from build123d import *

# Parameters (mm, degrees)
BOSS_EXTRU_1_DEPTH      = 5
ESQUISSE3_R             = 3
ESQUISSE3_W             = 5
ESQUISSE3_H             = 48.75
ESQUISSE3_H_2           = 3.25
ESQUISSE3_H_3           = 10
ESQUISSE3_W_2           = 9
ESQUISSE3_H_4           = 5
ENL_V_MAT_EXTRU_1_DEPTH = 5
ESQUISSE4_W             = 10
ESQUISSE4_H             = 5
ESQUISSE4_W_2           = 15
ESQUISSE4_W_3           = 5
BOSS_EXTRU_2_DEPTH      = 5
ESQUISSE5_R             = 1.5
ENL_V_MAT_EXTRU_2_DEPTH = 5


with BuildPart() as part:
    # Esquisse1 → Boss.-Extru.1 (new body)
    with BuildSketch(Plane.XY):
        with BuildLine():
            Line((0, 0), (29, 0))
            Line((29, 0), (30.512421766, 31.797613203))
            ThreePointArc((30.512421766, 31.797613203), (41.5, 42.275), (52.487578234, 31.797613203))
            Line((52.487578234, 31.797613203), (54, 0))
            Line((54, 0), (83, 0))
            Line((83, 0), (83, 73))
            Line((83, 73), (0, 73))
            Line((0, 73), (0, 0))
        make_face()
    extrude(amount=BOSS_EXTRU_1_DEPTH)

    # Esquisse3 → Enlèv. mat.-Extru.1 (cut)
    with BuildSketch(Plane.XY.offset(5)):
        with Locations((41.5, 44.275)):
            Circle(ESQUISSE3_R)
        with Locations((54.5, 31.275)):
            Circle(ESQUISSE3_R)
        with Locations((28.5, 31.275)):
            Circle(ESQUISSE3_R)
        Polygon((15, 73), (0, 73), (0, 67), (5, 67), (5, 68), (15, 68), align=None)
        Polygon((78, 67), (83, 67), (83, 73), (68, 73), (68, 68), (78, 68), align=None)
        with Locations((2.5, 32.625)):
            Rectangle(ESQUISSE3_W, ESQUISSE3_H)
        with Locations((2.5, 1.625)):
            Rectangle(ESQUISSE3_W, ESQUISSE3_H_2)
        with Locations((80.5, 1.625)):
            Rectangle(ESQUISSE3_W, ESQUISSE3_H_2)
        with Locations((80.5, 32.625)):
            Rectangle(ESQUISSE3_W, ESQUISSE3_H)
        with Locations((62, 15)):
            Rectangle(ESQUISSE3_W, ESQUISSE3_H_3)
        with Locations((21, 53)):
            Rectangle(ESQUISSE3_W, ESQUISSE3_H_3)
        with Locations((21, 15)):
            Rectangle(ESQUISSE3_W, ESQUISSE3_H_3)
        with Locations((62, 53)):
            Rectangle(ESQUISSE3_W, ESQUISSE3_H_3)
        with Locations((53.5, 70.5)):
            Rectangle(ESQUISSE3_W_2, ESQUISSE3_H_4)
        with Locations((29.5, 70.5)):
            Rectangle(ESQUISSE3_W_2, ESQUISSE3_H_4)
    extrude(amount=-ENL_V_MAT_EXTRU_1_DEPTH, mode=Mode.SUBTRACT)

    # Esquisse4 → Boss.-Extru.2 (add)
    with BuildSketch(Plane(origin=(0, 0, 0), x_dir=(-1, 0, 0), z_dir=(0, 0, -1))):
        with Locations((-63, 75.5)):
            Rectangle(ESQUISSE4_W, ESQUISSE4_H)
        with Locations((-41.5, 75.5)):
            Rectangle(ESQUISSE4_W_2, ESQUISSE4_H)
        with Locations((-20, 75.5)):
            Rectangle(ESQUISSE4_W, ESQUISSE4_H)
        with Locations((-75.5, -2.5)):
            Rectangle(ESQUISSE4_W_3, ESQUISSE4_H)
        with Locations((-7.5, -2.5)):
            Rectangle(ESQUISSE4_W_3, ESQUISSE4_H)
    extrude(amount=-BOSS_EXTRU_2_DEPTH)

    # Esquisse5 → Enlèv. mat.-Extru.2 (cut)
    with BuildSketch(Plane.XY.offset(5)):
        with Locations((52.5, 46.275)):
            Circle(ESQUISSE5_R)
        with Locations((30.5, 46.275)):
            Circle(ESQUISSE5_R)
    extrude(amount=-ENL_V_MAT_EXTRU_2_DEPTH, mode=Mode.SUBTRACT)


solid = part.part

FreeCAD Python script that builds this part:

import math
import FreeCAD as App
import Part
import Sketcher
Q = App.Units.Quantity

doc = App.newDocument("Part")
body = doc.addObject("PartDesign::Body", "Body")

# Sketch on XY plane
sketch1 = body.newObject("Sketcher::SketchObject", "Sketch")
sketch1.AttachmentSupport = (doc.getObject("XY_Plane"), [""])
sketch1.MapMode = "FlatFace"
sketch1.addGeometry([
    Part.LineSegment(App.Vector(0, 0, 0), App.Vector(29, 0, 0)),  # 0
    Part.LineSegment(App.Vector(29, 0, 0), App.Vector(31, 32, 0)),  # 1
    Part.ArcOfCircle(Part.Circle(App.Vector(42, 31, 0), App.Vector(0, 0, 1), 11), math.radians(3), math.radians(177)),  # 2
    Part.LineSegment(App.Vector(52, 32, 0), App.Vector(54, 0, 0)),  # 3
    Part.LineSegment(App.Vector(54, 0, 0), App.Vector(83, 0, 0)),  # 4
    Part.LineSegment(App.Vector(83, 0, 0), App.Vector(83, 73, 0)),  # 5
    Part.LineSegment(App.Vector(83, 73, 0), App.Vector(0, 73, 0)),  # 6
    Part.LineSegment(App.Vector(0, 73, 0), App.Vector(0, 0, 0)),  # 7
], False)
sketch1.addConstraint([
    Sketcher.Constraint("Coincident", 0, 2, 1, 1),
    Sketcher.Constraint("Tangent", 1, 2, 2, 2),
    Sketcher.Constraint("Tangent", 2, 1, 3, 1),
    Sketcher.Constraint("Coincident", 3, 2, 4, 1),
    Sketcher.Constraint("Coincident", 4, 2, 5, 1),
    Sketcher.Constraint("Coincident", 5, 2, 6, 1),
    Sketcher.Constraint("Coincident", 6, 2, 7, 1),
    Sketcher.Constraint("Coincident", 7, 2, 0, 1),
    Sketcher.Constraint("Horizontal", 0),
    Sketcher.Constraint("Horizontal", 4),
    Sketcher.Constraint("Vertical", 5),
    Sketcher.Constraint("Horizontal", 6),
    Sketcher.Constraint("Vertical", 7),
    Sketcher.Constraint("Coincident", 7, 2, -1, 1),
    Sketcher.Constraint("PointOnObject", 3, 2, -1),
    Sketcher.Constraint("Horizontal", 1, 2, 2, 1),
    Sketcher.Constraint("Equal", 0, 4),
    Sketcher.Constraint("Radius", 2, Q("11 mm")),
    Sketcher.Constraint("DistanceX", 0, 1, 0, 2, Q("29 mm")),
    Sketcher.Constraint("DistanceX", 6, 2, 6, 1, Q("83 mm")),
    Sketcher.Constraint("DistanceY", 5, 1, 5, 2, Q("73 mm")),
    Sketcher.Constraint("DistanceY", -1, 1, 2, 3, Q("31.275 mm")),
])
pad1 = body.newObject("PartDesign::Pad", "Pad")
pad1.Profile = sketch1
pad1.Length = 5

# Sketch on XY plane
sketch2 = body.newObject("Sketcher::SketchObject", "Sketch001")
sketch2.AttachmentSupport = (doc.getObject("XY_Plane"), [""])
sketch2.MapMode = "FlatFace"
sketch2.AttachmentOffset = App.Placement(App.Vector(0, 0, 5), App.Rotation())
sketch2.addGeometry([
    Part.Circle(App.Vector(41.5, 44.3, 0), App.Vector(0, 0, 1), 3),  # 0
    Part.Circle(App.Vector(54.5, 31.3, 0), App.Vector(0, 0, 1), 3),  # 1
    Part.Circle(App.Vector(28.5, 31.3, 0), App.Vector(0, 0, 1), 3),  # 2
    Part.LineSegment(App.Vector(15, 73, 0), App.Vector(0, 73, 0)),  # 3
    Part.LineSegment(App.Vector(0, 73, 0), App.Vector(0, 67, 0)),  # 4
    Part.LineSegment(App.Vector(0, 67, 0), App.Vector(5, 67, 0)),  # 5
    Part.LineSegment(App.Vector(5, 67, 0), App.Vector(5, 68, 0)),  # 6
    Part.LineSegment(App.Vector(5, 68, 0), App.Vector(15, 68, 0)),  # 7
    Part.LineSegment(App.Vector(15, 68, 0), App.Vector(15, 73, 0)),  # 8
    Part.LineSegment(App.Vector(78, 67, 0), App.Vector(83, 67, 0)),  # 9
    Part.LineSegment(App.Vector(83, 67, 0), App.Vector(83, 73, 0)),  # 10
    Part.LineSegment(App.Vector(83, 73, 0), App.Vector(68, 73, 0)),  # 11
    Part.LineSegment(App.Vector(68, 73, 0), App.Vector(68, 68, 0)),  # 12
    Part.LineSegment(App.Vector(68, 68, 0), App.Vector(78, 68, 0)),  # 13
    Part.LineSegment(App.Vector(78, 68, 0), App.Vector(78, 67, 0)),  # 14
    Part.LineSegment(App.Vector(0, 57, 0), App.Vector(0, 8.2, 0)),  # 15
    Part.LineSegment(App.Vector(0, 8.2, 0), App.Vector(5, 8.2, 0)),  # 16
    Part.LineSegment(App.Vector(5, 8.2, 0), App.Vector(5, 57, 0)),  # 17
    Part.LineSegment(App.Vector(5, 57, 0), App.Vector(0, 57, 0)),  # 18
    Part.LineSegment(App.Vector(0, 3.2, 0), App.Vector(0, 0, 0)),  # 19
    Part.LineSegment(App.Vector(0, 0, 0), App.Vector(5, 0, 0)),  # 20
    Part.LineSegment(App.Vector(5, 0, 0), App.Vector(5, 3.2, 0)),  # 21
    Part.LineSegment(App.Vector(5, 3.2, 0), App.Vector(0, 3.2, 0)),  # 22
    Part.LineSegment(App.Vector(78, 3.2, 0), App.Vector(78, 0, 0)),  # 23
    Part.LineSegment(App.Vector(78, 0, 0), App.Vector(83, 0, 0)),  # 24
    Part.LineSegment(App.Vector(83, 0, 0), App.Vector(83, 3.2, 0)),  # 25
    Part.LineSegment(App.Vector(83, 3.2, 0), App.Vector(78, 3.2, 0)),  # 26
    Part.LineSegment(App.Vector(78, 57, 0), App.Vector(78, 8.2, 0)),  # 27
    Part.LineSegment(App.Vector(78, 8.2, 0), App.Vector(83, 8.2, 0)),  # 28
    Part.LineSegment(App.Vector(83, 8.2, 0), App.Vector(83, 57, 0)),  # 29
    Part.LineSegment(App.Vector(83, 57, 0), App.Vector(78, 57, 0)),  # 30
    Part.LineSegment(App.Vector(59.5, 20, 0), App.Vector(59.5, 10, 0)),  # 31
    Part.LineSegment(App.Vector(59.5, 10, 0), App.Vector(64.5, 10, 0)),  # 32
    Part.LineSegment(App.Vector(64.5, 10, 0), App.Vector(64.5, 20, 0)),  # 33
    Part.LineSegment(App.Vector(64.5, 20, 0), App.Vector(59.5, 20, 0)),  # 34
    Part.LineSegment(App.Vector(18.5, 58, 0), App.Vector(18.5, 48, 0)),  # 35
    Part.LineSegment(App.Vector(18.5, 48, 0), App.Vector(23.5, 48, 0)),  # 36
    Part.LineSegment(App.Vector(23.5, 48, 0), App.Vector(23.5, 58, 0)),  # 37
    Part.LineSegment(App.Vector(23.5, 58, 0), App.Vector(18.5, 58, 0)),  # 38
    Part.LineSegment(App.Vector(18.5, 20, 0), App.Vector(18.5, 10, 0)),  # 39
    Part.LineSegment(App.Vector(18.5, 10, 0), App.Vector(23.5, 10, 0)),  # 40
    Part.LineSegment(App.Vector(23.5, 10, 0), App.Vector(23.5, 20, 0)),  # 41
    Part.LineSegment(App.Vector(23.5, 20, 0), App.Vector(18.5, 20, 0)),  # 42
    Part.LineSegment(App.Vector(59.5, 58, 0), App.Vector(59.5, 48, 0)),  # 43
    Part.LineSegment(App.Vector(59.5, 48, 0), App.Vector(64.5, 48, 0)),  # 44
    Part.LineSegment(App.Vector(64.5, 48, 0), App.Vector(64.5, 58, 0)),  # 45
    Part.LineSegment(App.Vector(64.5, 58, 0), App.Vector(59.5, 58, 0)),  # 46
    Part.LineSegment(App.Vector(49, 73, 0), App.Vector(49, 68, 0)),  # 47
    Part.LineSegment(App.Vector(49, 68, 0), App.Vector(58, 68, 0)),  # 48
    Part.LineSegment(App.Vector(58, 68, 0), App.Vector(58, 73, 0)),  # 49
    Part.LineSegment(App.Vector(58, 73, 0), App.Vector(49, 73, 0)),  # 50
    Part.LineSegment(App.Vector(25, 73, 0), App.Vector(25, 68, 0)),  # 51
    Part.LineSegment(App.Vector(25, 68, 0), App.Vector(34, 68, 0)),  # 52
    Part.LineSegment(App.Vector(34, 68, 0), App.Vector(34, 73, 0)),  # 53
    Part.LineSegment(App.Vector(34, 73, 0), App.Vector(25, 73, 0)),  # 54
], False)
sketch2.addConstraint([
    Sketcher.Constraint("Coincident", 3, 2, 4, 1),
    Sketcher.Constraint("Coincident", 4, 2, 5, 1),
    Sketcher.Constraint("Coincident", 5, 2, 6, 1),
    Sketcher.Constraint("Coincident", 6, 2, 7, 1),
    Sketcher.Constraint("Coincident", 7, 2, 8, 1),
    Sketcher.Constraint("Coincident", 8, 2, 3, 1),
    Sketcher.Constraint("Coincident", 9, 2, 10, 1),
    Sketcher.Constraint("Coincident", 10, 2, 11, 1),
    Sketcher.Constraint("Coincident", 11, 2, 12, 1),
    Sketcher.Constraint("Coincident", 12, 2, 13, 1),
    Sketcher.Constraint("Coincident", 13, 2, 14, 1),
    Sketcher.Constraint("Coincident", 14, 2, 9, 1),
    Sketcher.Constraint("Coincident", 15, 2, 16, 1),
    Sketcher.Constraint("Coincident", 16, 2, 17, 1),
    Sketcher.Constraint("Coincident", 17, 2, 18, 1),
    Sketcher.Constraint("Coincident", 18, 2, 15, 1),
    Sketcher.Constraint("Coincident", 19, 2, 20, 1),
    Sketcher.Constraint("Coincident", 20, 2, 21, 1),
    Sketcher.Constraint("Coincident", 21, 2, 22, 1),
    Sketcher.Constraint("Coincident", 22, 2, 19, 1),
    Sketcher.Constraint("Coincident", 23, 2, 24, 1),
    Sketcher.Constraint("Coincident", 24, 2, 25, 1),
    Sketcher.Constraint("Coincident", 25, 2, 26, 1),
    Sketcher.Constraint("Coincident", 26, 2, 23, 1),
    Sketcher.Constraint("Coincident", 27, 2, 28, 1),
    Sketcher.Constraint("Coincident", 28, 2, 29, 1),
    Sketcher.Constraint("Coincident", 29, 2, 30, 1),
    Sketcher.Constraint("Coincident", 30, 2, 27, 1),
    Sketcher.Constraint("Coincident", 31, 2, 32, 1),
    Sketcher.Constraint("Coincident", 32, 2, 33, 1),
    Sketcher.Constraint("Coincident", 33, 2, 34, 1),
    Sketcher.Constraint("Coincident", 34, 2, 31, 1),
    Sketcher.Constraint("Coincident", 35, 2, 36, 1),
    Sketcher.Constraint("Coincident", 36, 2, 37, 1),
    Sketcher.Constraint("Coincident", 37, 2, 38, 1),
    Sketcher.Constraint("Coincident", 38, 2, 35, 1),
    Sketcher.Constraint("Coincident", 39, 2, 40, 1),
    Sketcher.Constraint("Coincident", 40, 2, 41, 1),
    Sketcher.Constraint("Coincident", 41, 2, 42, 1),
    Sketcher.Constraint("Coincident", 42, 2, 39, 1),
    Sketcher.Constraint("Coincident", 43, 2, 44, 1),
    Sketcher.Constraint("Coincident", 44, 2, 45, 1),
    Sketcher.Constraint("Coincident", 45, 2, 46, 1),
    Sketcher.Constraint("Coincident", 46, 2, 43, 1),
    Sketcher.Constraint("Coincident", 47, 2, 48, 1),
    Sketcher.Constraint("Coincident", 48, 2, 49, 1),
    Sketcher.Constraint("Coincident", 49, 2, 50, 1),
    Sketcher.Constraint("Coincident", 50, 2, 47, 1),
    Sketcher.Constraint("Coincident", 51, 2, 52, 1),
    Sketcher.Constraint("Coincident", 52, 2, 53, 1),
    Sketcher.Constraint("Coincident", 53, 2, 54, 1),
    Sketcher.Constraint("Coincident", 54, 2, 51, 1),
    Sketcher.Constraint("Horizontal", 3),
    Sketcher.Constraint("Vertical", 4),
    Sketcher.Constraint("Horizontal", 5),
    Sketcher.Constraint("Vertical", 6),
    Sketcher.Constraint("Horizontal", 7),
    Sketcher.Constraint("Vertical", 8),
    Sketcher.Constraint("Horizontal", 9),
    Sketcher.Constraint("Vertical", 10),
    Sketcher.Constraint("Horizontal", 11),
    Sketcher.Constraint("Vertical", 12),
    Sketcher.Constraint("Horizontal", 13),
    Sketcher.Constraint("Vertical", 14),
    Sketcher.Constraint("Vertical", 15),
    Sketcher.Constraint("Horizontal", 16),
    Sketcher.Constraint("Vertical", 17),
    Sketcher.Constraint("Horizontal", 18),
    Sketcher.Constraint("Vertical", 19),
    Sketcher.Constraint("Horizontal", 20),
    Sketcher.Constraint("Vertical", 21),
    Sketcher.Constraint("Horizontal", 22),
    Sketcher.Constraint("Vertical", 23),
    Sketcher.Constraint("Horizontal", 24),
    Sketcher.Constraint("Vertical", 25),
    Sketcher.Constraint("Horizontal", 26),
    Sketcher.Constraint("Vertical", 27),
    Sketcher.Constraint("Horizontal", 28),
    Sketcher.Constraint("Vertical", 29),
    Sketcher.Constraint("Horizontal", 30),
    Sketcher.Constraint("Vertical", 31),
    Sketcher.Constraint("Horizontal", 32),
    Sketcher.Constraint("Vertical", 33),
    Sketcher.Constraint("Horizontal", 34),
    Sketcher.Constraint("Vertical", 35),
    Sketcher.Constraint("Horizontal", 36),
    Sketcher.Constraint("Vertical", 37),
    Sketcher.Constraint("Horizontal", 38),
    Sketcher.Constraint("Vertical", 39),
    Sketcher.Constraint("Horizontal", 40),
    Sketcher.Constraint("Vertical", 41),
    Sketcher.Constraint("Horizontal", 42),
    Sketcher.Constraint("Vertical", 43),
    Sketcher.Constraint("Horizontal", 44),
    Sketcher.Constraint("Vertical", 45),
    Sketcher.Constraint("Horizontal", 46),
    Sketcher.Constraint("Vertical", 47),
    Sketcher.Constraint("Horizontal", 48),
    Sketcher.Constraint("Vertical", 49),
    Sketcher.Constraint("Horizontal", 50),
    Sketcher.Constraint("Vertical", 51),
    Sketcher.Constraint("Horizontal", 52),
    Sketcher.Constraint("Vertical", 53),
    Sketcher.Constraint("Horizontal", 54),
    Sketcher.Constraint("Coincident", 19, 2, -1, 1),
    Sketcher.Constraint("Equal", 0, 1),
    Sketcher.Constraint("Equal", 1, 2),
    Sketcher.Constraint("PointOnObject", 3, 2, -2),
    Sketcher.Constraint("PointOnObject", 15, 2, -2),
    Sketcher.Constraint("PointOnObject", 23, 2, -1),
    Sketcher.Constraint("Horizontal", 1, 3, 2, 3),
    Sketcher.Constraint("Horizontal", 5, 2, 9, 2),
    Sketcher.Constraint("Horizontal", 8, 2, 10, 2),
    Sketcher.Constraint("Horizontal", 7, 2, 12, 2),
    Sketcher.Constraint("Horizontal", 22, 2, 25, 2),
    Sketcher.Constraint("Horizontal", 16, 2, 27, 2),
    Sketcher.Constraint("Horizontal", 18, 2, 29, 2),
    Sketcher.Constraint("Horizontal", 32, 2, 39, 2),
    Sketcher.Constraint("Horizontal", 34, 2, 41, 2),
    Sketcher.Constraint("Horizontal", 36, 2, 43, 2),
    Sketcher.Constraint("Horizontal", 38, 2, 45, 2),
    Sketcher.Constraint("Horizontal", 13, 2, 47, 2),
    Sketcher.Constraint("Horizontal", 11, 2, 49, 2),
    Sketcher.Constraint("Horizontal", 48, 2, 51, 2),
    Sketcher.Constraint("Horizontal", 50, 2, 53, 2),
    Sketcher.Constraint("Vertical", 6, 2, 16, 2),
    Sketcher.Constraint("Vertical", 17, 2, 20, 2),
    Sketcher.Constraint("Vertical", 14, 2, 23, 2),
    Sketcher.Constraint("Vertical", 10, 2, 24, 2),
    Sketcher.Constraint("Vertical", 26, 2, 27, 2),
    Sketcher.Constraint("Vertical", 25, 2, 28, 2),
    Sketcher.Constraint("Vertical", 38, 2, 39, 2),
    Sketcher.Constraint("Vertical", 37, 2, 40, 2),
    Sketcher.Constraint("Vertical", 34, 2, 43, 2),
    Sketcher.Constraint("Vertical", 33, 2, 44, 2),
    Sketcher.Constraint("Equal", 5, 9),
    Sketcher.Constraint("Equal", 3, 11),
    Sketcher.Constraint("Equal", 30, 32),
    Sketcher.Constraint("Equal", 34, 36),
    Sketcher.Constraint("Equal", 50, 52),
    Sketcher.Constraint("Equal", 46, 8),
    Sketcher.Constraint("Equal", 13, 31),
    Sketcher.Constraint("Equal", 33, 35),
    Sketcher.Constraint("Diameter", 0, Q("6 mm")),
    Sketcher.Constraint("DistanceX", 3, 2, 3, 1, Q("15 mm")),
    Sketcher.Constraint("DistanceX", 5, 1, 5, 2, Q("5 mm")),
    Sketcher.Constraint("DistanceX", 48, 1, 48, 2, Q("9 mm")),
    Sketcher.Constraint("DistanceY", 4, 2, 4, 1, Q("6 mm")),
    Sketcher.Constraint("DistanceY", -1, 1, 3, 2, Q("73 mm")),
    Sketcher.Constraint("DistanceX", -1, 1, 9, 2, Q("83 mm")),
    Sketcher.Constraint("DistanceY", -1, 1, 17, 2, Q("57 mm")),
    Sketcher.Constraint("DistanceY", -1, 1, 31, 2, Q("10 mm")),
    Sketcher.Constraint("DistanceY", -1, 1, 35, 2, Q("48 mm")),
    Sketcher.Constraint("DistanceX", -1, 1, 47, 2, Q("49 mm")),
    Sketcher.Constraint("DistanceX", -1, 1, 51, 2, Q("25 mm")),
    Sketcher.Constraint("DistanceX", 0, 3, 1, 3, Q("13 mm")),
    Sketcher.Constraint("DistanceY", 1, 3, 0, 3, Q("13 mm")),
    Sketcher.Constraint("DistanceX", 2, 3, 0, 3, Q("13 mm")),
    Sketcher.Constraint("DistanceY", 21, 2, 16, 2, Q("5 mm")),
    Sketcher.Constraint("DistanceX", 1, 3, 31, 2, Q("5 mm")),
    Sketcher.Constraint("DistanceX", 35, 2, 2, 3, Q("10 mm")),
    Sketcher.Constraint("DistanceY", 15, 2, 15, 1, Q("48.75 mm")),
    Sketcher.Constraint("DistanceX", -1, 1, 0, 3, Q("41.5 mm")),
    Sketcher.Constraint("DistanceY", -1, 1, 0, 3, Q("44.275 mm")),
])
pocket1 = body.newObject("PartDesign::Pocket", "Pocket")
pocket1.Profile = sketch2
pocket1.Length = 5

# Sketch on XY plane
sketch3 = body.newObject("Sketcher::SketchObject", "Sketch002")
sketch3.AttachmentSupport = (doc.getObject("XY_Plane"), [""])
sketch3.MapMode = "FlatFace"
sketch3.addGeometry([
    Part.LineSegment(App.Vector(68, 78, 0), App.Vector(68, 73, 0)),  # 0
    Part.LineSegment(App.Vector(68, 73, 0), App.Vector(58, 73, 0)),  # 1
    Part.LineSegment(App.Vector(58, 73, 0), App.Vector(58, 78, 0)),  # 2
    Part.LineSegment(App.Vector(58, 78, 0), App.Vector(68, 78, 0)),  # 3
    Part.LineSegment(App.Vector(49, 78, 0), App.Vector(49, 73, 0)),  # 4
    Part.LineSegment(App.Vector(49, 73, 0), App.Vector(34, 73, 0)),  # 5
    Part.LineSegment(App.Vector(34, 73, 0), App.Vector(34, 78, 0)),  # 6
    Part.LineSegment(App.Vector(34, 78, 0), App.Vector(49, 78, 0)),  # 7
    Part.LineSegment(App.Vector(25, 78, 0), App.Vector(25, 73, 0)),  # 8
    Part.LineSegment(App.Vector(25, 73, 0), App.Vector(15, 73, 0)),  # 9
    Part.LineSegment(App.Vector(15, 73, 0), App.Vector(15, 78, 0)),  # 10
    Part.LineSegment(App.Vector(15, 78, 0), App.Vector(25, 78, 0)),  # 11
    Part.LineSegment(App.Vector(78, 0, 0), App.Vector(78, -5, 0)),  # 12
    Part.LineSegment(App.Vector(78, -5, 0), App.Vector(73, -5, 0)),  # 13
    Part.LineSegment(App.Vector(73, -5, 0), App.Vector(73, 0, 0)),  # 14
    Part.LineSegment(App.Vector(73, 0, 0), App.Vector(78, 0, 0)),  # 15
    Part.LineSegment(App.Vector(10, 0, 0), App.Vector(10, -5, 0)),  # 16
    Part.LineSegment(App.Vector(10, -5, 0), App.Vector(5, -5, 0)),  # 17
    Part.LineSegment(App.Vector(5, -5, 0), App.Vector(5, 0, 0)),  # 18
    Part.LineSegment(App.Vector(5, 0, 0), App.Vector(10, 0, 0)),  # 19
], False)
sketch3.addConstraint([
    Sketcher.Constraint("Coincident", 0, 2, 1, 1),
    Sketcher.Constraint("Coincident", 1, 2, 2, 1),
    Sketcher.Constraint("Coincident", 2, 2, 3, 1),
    Sketcher.Constraint("Coincident", 3, 2, 0, 1),
    Sketcher.Constraint("Coincident", 4, 2, 5, 1),
    Sketcher.Constraint("Coincident", 5, 2, 6, 1),
    Sketcher.Constraint("Coincident", 6, 2, 7, 1),
    Sketcher.Constraint("Coincident", 7, 2, 4, 1),
    Sketcher.Constraint("Coincident", 8, 2, 9, 1),
    Sketcher.Constraint("Coincident", 9, 2, 10, 1),
    Sketcher.Constraint("Coincident", 10, 2, 11, 1),
    Sketcher.Constraint("Coincident", 11, 2, 8, 1),
    Sketcher.Constraint("Coincident", 12, 2, 13, 1),
    Sketcher.Constraint("Coincident", 13, 2, 14, 1),
    Sketcher.Constraint("Coincident", 14, 2, 15, 1),
    Sketcher.Constraint("Coincident", 15, 2, 12, 1),
    Sketcher.Constraint("Coincident", 16, 2, 17, 1),
    Sketcher.Constraint("Coincident", 17, 2, 18, 1),
    Sketcher.Constraint("Coincident", 18, 2, 19, 1),
    Sketcher.Constraint("Coincident", 19, 2, 16, 1),
    Sketcher.Constraint("Vertical", 0),
    Sketcher.Constraint("Horizontal", 1),
    Sketcher.Constraint("Vertical", 2),
    Sketcher.Constraint("Horizontal", 3),
    Sketcher.Constraint("Vertical", 4),
    Sketcher.Constraint("Horizontal", 5),
    Sketcher.Constraint("Vertical", 6),
    Sketcher.Constraint("Horizontal", 7),
    Sketcher.Constraint("Vertical", 8),
    Sketcher.Constraint("Horizontal", 9),
    Sketcher.Constraint("Vertical", 10),
    Sketcher.Constraint("Horizontal", 11),
    Sketcher.Constraint("Vertical", 12),
    Sketcher.Constraint("Horizontal", 13),
    Sketcher.Constraint("Vertical", 14),
    Sketcher.Constraint("Horizontal", 15),
    Sketcher.Constraint("Vertical", 16),
    Sketcher.Constraint("Horizontal", 17),
    Sketcher.Constraint("Vertical", 18),
    Sketcher.Constraint("Horizontal", 19),
    Sketcher.Constraint("PointOnObject", 14, 2, -1),
    Sketcher.Constraint("PointOnObject", 18, 2, -1),
    Sketcher.Constraint("Horizontal", 1, 2, 4, 2),
    Sketcher.Constraint("Horizontal", 3, 2, 6, 2),
    Sketcher.Constraint("Horizontal", 5, 2, 8, 2),
    Sketcher.Constraint("Horizontal", 7, 2, 10, 2),
    Sketcher.Constraint("Horizontal", 13, 2, 16, 2),
    Sketcher.Constraint("Equal", 3, 9),
    Sketcher.Constraint("Equal", 15, 17),
    Sketcher.Constraint("Equal", 19, 0),
    Sketcher.Constraint("Equal", 10, 12),
    Sketcher.Constraint("DistanceX", 1, 2, 1, 1, Q("10 mm")),
    Sketcher.Constraint("DistanceX", 5, 2, 5, 1, Q("15 mm")),
    Sketcher.Constraint("DistanceX", 13, 2, 13, 1, Q("5 mm")),
    Sketcher.Constraint("DistanceX", -1, 1, 0, 2, Q("68 mm")),
    Sketcher.Constraint("DistanceY", -1, 1, 0, 2, Q("73 mm")),
    Sketcher.Constraint("DistanceX", -1, 1, 4, 2, Q("49 mm")),
    Sketcher.Constraint("DistanceX", -1, 1, 8, 2, Q("25 mm")),
    Sketcher.Constraint("DistanceX", -1, 1, 12, 2, Q("78 mm")),
    Sketcher.Constraint("DistanceX", -1, 1, 16, 2, Q("10 mm")),
])
pad2 = body.newObject("PartDesign::Pad", "Pad001")
pad2.Profile = sketch3
pad2.Length = 5

# Sketch on XY plane
sketch4 = body.newObject("Sketcher::SketchObject", "Sketch003")
sketch4.AttachmentSupport = (doc.getObject("XY_Plane"), [""])
sketch4.MapMode = "FlatFace"
sketch4.AttachmentOffset = App.Placement(App.Vector(0, 0, 5), App.Rotation())
sketch4.addGeometry([
    Part.Circle(App.Vector(52.5, 46.3, 0), App.Vector(0, 0, 1), 1.5),
    Part.Circle(App.Vector(30.5, 46.3, 0), App.Vector(0, 0, 1), 1.5),
], False)
sketch4.addConstraint([
    Sketcher.Constraint("Equal", 0, 1),
    Sketcher.Constraint("Horizontal", 0, 3, 1, 3),
    Sketcher.Constraint("Diameter", 0, Q("3 mm")),
    Sketcher.Constraint("DistanceX", 1, 3, 0, 3, Q("22 mm")),
    Sketcher.Constraint("DistanceX", -1, 1, 0, 3, Q("52.5 mm")),
    Sketcher.Constraint("DistanceY", -1, 1, 0, 3, Q("46.275 mm")),
])
pocket2 = body.newObject("PartDesign::Pocket", "Pocket001")
pocket2.Profile = sketch4
pocket2.Length = 5

doc.recompute()
